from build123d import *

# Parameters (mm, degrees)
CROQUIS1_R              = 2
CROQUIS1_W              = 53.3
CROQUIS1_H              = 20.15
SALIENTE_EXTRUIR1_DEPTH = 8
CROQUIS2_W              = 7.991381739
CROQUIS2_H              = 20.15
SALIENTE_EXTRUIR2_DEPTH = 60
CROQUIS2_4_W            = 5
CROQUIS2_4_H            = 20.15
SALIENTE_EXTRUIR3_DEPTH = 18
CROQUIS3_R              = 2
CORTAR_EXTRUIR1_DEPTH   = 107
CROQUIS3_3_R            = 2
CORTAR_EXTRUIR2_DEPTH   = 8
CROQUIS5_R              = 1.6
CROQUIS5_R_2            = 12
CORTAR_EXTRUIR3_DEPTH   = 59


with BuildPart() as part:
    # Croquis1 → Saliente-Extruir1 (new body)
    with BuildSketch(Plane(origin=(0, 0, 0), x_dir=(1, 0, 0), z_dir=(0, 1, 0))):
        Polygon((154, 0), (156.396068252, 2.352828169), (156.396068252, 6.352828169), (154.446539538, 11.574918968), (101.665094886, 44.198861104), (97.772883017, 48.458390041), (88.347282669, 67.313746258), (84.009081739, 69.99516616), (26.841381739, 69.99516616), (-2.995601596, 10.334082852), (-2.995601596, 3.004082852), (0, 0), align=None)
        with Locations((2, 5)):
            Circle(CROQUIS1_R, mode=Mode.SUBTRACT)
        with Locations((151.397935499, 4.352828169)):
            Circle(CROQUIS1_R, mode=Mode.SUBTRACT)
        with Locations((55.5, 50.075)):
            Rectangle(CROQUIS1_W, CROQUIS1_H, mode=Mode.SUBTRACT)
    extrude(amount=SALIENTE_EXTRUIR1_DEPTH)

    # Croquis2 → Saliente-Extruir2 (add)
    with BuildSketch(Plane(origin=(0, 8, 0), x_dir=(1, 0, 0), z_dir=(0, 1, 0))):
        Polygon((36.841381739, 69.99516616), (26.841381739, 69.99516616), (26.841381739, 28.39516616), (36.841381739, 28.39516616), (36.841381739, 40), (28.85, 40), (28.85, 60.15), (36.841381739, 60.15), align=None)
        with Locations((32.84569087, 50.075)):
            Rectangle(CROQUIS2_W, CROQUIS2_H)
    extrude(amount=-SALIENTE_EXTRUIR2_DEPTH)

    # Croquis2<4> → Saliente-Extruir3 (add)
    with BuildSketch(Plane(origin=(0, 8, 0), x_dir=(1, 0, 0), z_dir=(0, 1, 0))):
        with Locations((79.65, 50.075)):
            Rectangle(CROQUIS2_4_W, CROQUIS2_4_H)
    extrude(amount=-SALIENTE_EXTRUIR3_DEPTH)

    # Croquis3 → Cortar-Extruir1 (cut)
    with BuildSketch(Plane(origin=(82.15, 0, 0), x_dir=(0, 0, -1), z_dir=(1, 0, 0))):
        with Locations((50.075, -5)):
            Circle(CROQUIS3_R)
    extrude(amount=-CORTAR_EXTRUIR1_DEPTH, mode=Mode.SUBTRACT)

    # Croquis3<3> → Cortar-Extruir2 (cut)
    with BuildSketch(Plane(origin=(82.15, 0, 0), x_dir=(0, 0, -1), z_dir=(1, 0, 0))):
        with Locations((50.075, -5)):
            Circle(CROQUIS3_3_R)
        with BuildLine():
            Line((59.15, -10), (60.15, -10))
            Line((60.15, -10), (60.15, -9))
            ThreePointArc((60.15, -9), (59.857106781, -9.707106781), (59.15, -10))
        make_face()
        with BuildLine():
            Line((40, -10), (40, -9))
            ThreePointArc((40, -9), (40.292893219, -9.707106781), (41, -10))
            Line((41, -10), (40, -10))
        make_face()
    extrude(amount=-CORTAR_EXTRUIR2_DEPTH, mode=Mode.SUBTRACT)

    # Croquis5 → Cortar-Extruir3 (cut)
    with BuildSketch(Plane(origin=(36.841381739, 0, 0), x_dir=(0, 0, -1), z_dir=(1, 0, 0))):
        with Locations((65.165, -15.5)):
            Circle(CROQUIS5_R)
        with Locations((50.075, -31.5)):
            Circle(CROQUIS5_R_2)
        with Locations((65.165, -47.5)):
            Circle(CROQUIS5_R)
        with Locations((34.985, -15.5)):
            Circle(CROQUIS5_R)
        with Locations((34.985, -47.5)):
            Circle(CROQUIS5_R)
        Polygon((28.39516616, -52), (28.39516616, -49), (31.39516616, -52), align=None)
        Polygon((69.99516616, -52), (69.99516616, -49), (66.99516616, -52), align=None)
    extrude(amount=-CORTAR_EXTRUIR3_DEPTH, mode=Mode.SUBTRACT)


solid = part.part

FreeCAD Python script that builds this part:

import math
import FreeCAD as App
import Part
import Sketcher
Q = App.Units.Quantity

doc = App.newDocument("Part")
body = doc.addObject("PartDesign::Body", "Body")

# Sketch on XZ plane
sketch1 = body.newObject("Sketcher::SketchObject", "Sketch")
sketch1.AttachmentSupport = (doc.getObject("XZ_Plane"), [""])
sketch1.MapMode = "FlatFace"
sketch1.addGeometry(Part.LineSegment(App.Vector(154, 0, 0), App.Vector(156.4, -2.4, 0)), False)
sketch1.addGeometry(Part.LineSegment(App.Vector(156.4, -2.4, 0), App.Vector(156.4, -6.4, 0)), False)
sketch1.addGeometry(Part.LineSegment(App.Vector(156.4, -6.4, 0), App.Vector(154.4, -11.6, 0)), False)
sketch1.addGeometry(Part.LineSegment(App.Vector(154.4, -11.6, 0), App.Vector(101.7, -44.2, 0)), False)
sketch1.addGeometry(Part.LineSegment(App.Vector(101.7, -44.2, 0), App.Vector(97.8, -48.5, 0)), False)
sketch1.addGeometry(Part.LineSegment(App.Vector(97.8, -48.5, 0), App.Vector(88.3, -67.3, 0)), False)
sketch1.addGeometry(Part.LineSegment(App.Vector(88.3, -67.3, 0), App.Vector(84, -70, 0)), False)
sketch1.addGeometry(Part.LineSegment(App.Vector(84, -70, 0), App.Vector(26.8, -70, 0)), False)
sketch1.addGeometry(Part.LineSegment(App.Vector(26.8, -70, 0), App.Vector(-3, -10.3, 0)), False)
sketch1.addGeometry(Part.LineSegment(App.Vector(-3, -10.3, 0), App.Vector(-3, -3, 0)), False)
sketch1.addGeometry(Part.LineSegment(App.Vector(-3, -3, 0), App.Vector(0, 0, 0)), False)
sketch1.addGeometry(Part.LineSegment(App.Vector(0, 0, 0), App.Vector(154, 0, 0)), False)
sketch1.addGeometry(Part.Circle(App.Vector(2, -5, 0), App.Vector(0, 0, 1), 2), False)
sketch1.addGeometry(Part.Circle(App.Vector(151.4, -4.4, 0), App.Vector(0, 0, 1), 2), False)
sketch1.addGeometry(Part.LineSegment(App.Vector(82.2, -40, 0), App.Vector(28.9, -40, 0)), False)
sketch1.addGeometry(Part.LineSegment(App.Vector(28.9, -40, 0), App.Vector(28.9, -60.1, 0)), False)
sketch1.addGeometry(Part.LineSegment(App.Vector(28.9, -60.1, 0), App.Vector(82.2, -60.1, 0)), False)
sketch1.addGeometry(Part.LineSegment(App.Vector(82.2, -60.1, 0), App.Vector(82.2, -40, 0)), False)
sketch1.addConstraint(Sketcher.Constraint("Coincident", 0, 2, 1, 1))
sketch1.addConstraint(Sketcher.Constraint("Coincident", 1, 2, 2, 1))
sketch1.addConstraint(Sketcher.Constraint("Coincident", 2, 2, 3, 1))
sketch1.addConstraint(Sketcher.Constraint("Coincident", 3, 2, 4, 1))
sketch1.addConstraint(Sketcher.Constraint("Coincident", 4, 2, 5, 1))
sketch1.addConstraint(Sketcher.Constraint("Coincident", 5, 2, 6, 1))
sketch1.addConstraint(Sketcher.Constraint("Coincident", 6, 2, 7, 1))
sketch1.addConstraint(Sketcher.Constraint("Coincident", 7, 2, 8, 1))
sketch1.addConstraint(Sketcher.Constraint("Coincident", 8, 2, 9, 1))
sketch1.addConstraint(Sketcher.Constraint("Coincident", 9, 2, 10, 1))
sketch1.addConstraint(Sketcher.Constraint("Coincident", 10, 2, 11, 1))
sketch1.addConstraint(Sketcher.Constraint("Coincident", 11, 2, 0, 1))
sketch1.addConstraint(Sketcher.Constraint("Coincident", 14, 2, 15, 1))
sketch1.addConstraint(Sketcher.Constraint("Coincident", 15, 2, 16, 1))
sketch1.addConstraint(Sketcher.Constraint("Coincident", 16, 2, 17, 1))
sketch1.addConstraint(Sketcher.Constraint("Coincident", 17, 2, 14, 1))
sketch1.addConstraint(Sketcher.Constraint("Vertical", 1))
sketch1.addConstraint(Sketcher.Constraint("Horizontal", 7))
sketch1.addConstraint(Sketcher.Constraint("Vertical", 9))
sketch1.addConstraint(Sketcher.Constraint("Horizontal", 11))
sketch1.addConstraint(Sketcher.Constraint("Horizontal", 14))
sketch1.addConstraint(Sketcher.Constraint("Vertical", 15))
sketch1.addConstraint(Sketcher.Constraint("Horizontal", 16))
sketch1.addConstraint(Sketcher.Constraint("Vertical", 17))
sketch1.addConstraint(Sketcher.Constraint("Coincident", 10, 2, -1, 1))
sketch1.addConstraint(Sketcher.Constraint("Equal", 12, 13))
sketch1.addConstraint(Sketcher.Constraint("Parallel", 3, 6))
sketch1.addConstraint(Sketcher.Constraint("Diameter", 12, 4.0))
sketch1.addConstraint(Sketcher.Constraint("DistanceX", 11, 1, 11, 2, 154.0))
sketch1.addConstraint(Sketcher.Constraint("DistanceY", 1, 2, 1, 1, 4.0))
sketch1.addConstraint(Sketcher.Constraint("DistanceX", 14, 2, 14, 1, 53.3))
sketch1.addConstraint(Sketcher.Constraint("DistanceX", -1, 1, 12, 3, 2.0))
sketch1.addConstraint(Sketcher.Constraint("DistanceY", 12, 3, -1, 1, 5.0))
sketch1.addConstraint(Sketcher.Constraint("DistanceY", 14, 2, -1, 1, 40.0))
sketch1.addConstraint(Sketcher.Constraint("DistanceY", 13, 3, 0, 2, 2.0))
sketch1.addConstraint(Sketcher.Constraint("Distance", 6, 5.1))
sketch1.addConstraint(Sketcher.Constraint("DistanceY", 9, 1, 9, 2, 7.33))
sketch1.addConstraint(Sketcher.Constraint("DistanceY", 15, 2, 15, 1, 20.15))
sketch1.addConstraint(Sketcher.Constraint("Angle", 3, Q("-148.28 deg")))
sketch1.addConstraint(Sketcher.Constraint("Angle", 4, Q("-132.42 deg")))
sketch1.addConstraint(Sketcher.Constraint("Angle", 5, Q("-116.56 deg")))
sketch1.addConstraint(Sketcher.Constraint("Angle", 8, Q("116.57 deg")))
sketch1.addConstraint(Sketcher.Constraint("Distance", 3, 62.05))
sketch1.addConstraint(Sketcher.Constraint("Distance", 4, 5.77))
sketch1.addConstraint(Sketcher.Constraint("Distance", 5, 21.08))
sketch1.addConstraint(Sketcher.Constraint("DistanceX", -1, 1, 14, 2, 28.85))
sketch1.addConstraint(Sketcher.Constraint("Distance", 8, 66.706))
sketch1.addConstraint(Sketcher.Constraint("DistanceX", 7, 2, 7, 1, 57.1677))
sketch1.addConstraint(Sketcher.Constraint("DistanceX", 8, 2, -1, 1, 2.995602))
sketch1.addConstraint(Sketcher.Constraint("Distance", 10, 4.242422))
sketch1.addConstraint(Sketcher.Constraint("DistanceY", 13, 3, -1, 1, 4.352828))
sketch1.addConstraint(Sketcher.Constraint("DistanceX", -1, 1, 0, 2, 156.396068))
sketch1.addConstraint(Sketcher.Constraint("DistanceX", 3, 2, 13, 3, 49.732841))
pad1 = body.newObject("PartDesign::Pad", "Pad")
pad1.Profile = sketch1
pad1.Length = 8
pad1.Reversed = True

# Sketch on XZ plane
sketch2 = body.newObject("Sketcher::SketchObject", "Sketch001")
sketch2.AttachmentSupport = (doc.getObject("XZ_Plane"), [""])
sketch2.MapMode = "FlatFace"
sketch2.AttachmentOffset = App.Placement(App.Vector(0, 0, -8), App.Rotation())
sketch2.addGeometry(Part.LineSegment(App.Vector(37, -70, 0), App.Vector(27, -70, 0)), False)
sketch2.addGeometry(Part.LineSegment(App.Vector(27, -70, 0), App.Vector(27, -28, 0)), False)
sketch2.addGeometry(Part.LineSegment(App.Vector(27, -28, 0), App.Vector(37, -28, 0)), False)
sketch2.addGeometry(Part.LineSegment(App.Vector(37, -28, 0), App.Vector(37, -40, 0)), False)
sketch2.addGeometry(Part.LineSegment(App.Vector(37, -40, 0), App.Vector(37, -60, 0)), False)
sketch2.addGeometry(Part.LineSegment(App.Vector(37, -60, 0), App.Vector(37, -70, 0)), False)
sketch2.addConstraint(Sketcher.Constraint("Coincident", 0, 2, 1, 1))
sketch2.addConstraint(Sketcher.Constraint("Coincident", 1, 2, 2, 1))
sketch2.addConstraint(Sketcher.Constraint("Coincident", 2, 2, 3, 1))
sketch2.addConstraint(Sketcher.Constraint("Coincident", 3, 2, 4, 1))
sketch2.addConstraint(Sketcher.Constraint("Coincident", 4, 2, 5, 1))
sketch2.addConstraint(Sketcher.Constraint("Coincident", 5, 2, 0, 1))
sketch2.addConstraint(Sketcher.Constraint("Horizontal", 0))
sketch2.addConstraint(Sketcher.Constraint("Vertical", 1))
sketch2.addConstraint(Sketcher.Constraint("Horizontal", 2))
sketch2.addConstraint(Sketcher.Constraint("Vertical", 3))
sketch2.addConstraint(Sketcher.Constraint("Vertical", 4))
sketch2.addConstraint(Sketcher.Constraint("Vertical", 5))
sketch2.addConstraint(Sketcher.Constraint("DistanceX", 0, 2, 0, 1, 10.0))
sketch2.addConstraint(Sketcher.Constraint("DistanceY", 1, 1, 1, 2, 41.6))
sketch2.addConstraint(Sketcher.Constraint("DistanceY", 3, 2, -1, 1, 40.0))
sketch2.addConstraint(Sketcher.Constraint("DistanceY", 4, 2, 4, 1, 20.15))
sketch2.addConstraint(Sketcher.Constraint("DistanceY", 3, 2, 3, 1, 11.604834))
sketch2.addConstraint(Sketcher.Constraint("DistanceX", -1, 1, 0, 2, 26.841382))
pad2 = body.newObject("PartDesign::Pad", "Pad001")
pad2.Profile = sketch2
pad2.Length = 60

# Sketch on XZ plane
sketch3 = body.newObject("Sketcher::SketchObject", "Sketch002")
sketch3.AttachmentSupport = (doc.getObject("XZ_Plane"), [""])
sketch3.MapMode = "FlatFace"
sketch3.AttachmentOffset = App.Placement(App.Vector(0, 0, -8), App.Rotation())
sketch3.addGeometry(Part.LineSegment(App.Vector(77, -60, 0), App.Vector(77, -40, 0)), False)
sketch3.addGeometry(Part.LineSegment(App.Vector(77, -40, 0), App.Vector(82, -40, 0)), False)
sketch3.addGeometry(Part.LineSegment(App.Vector(82, -40, 0), App.Vector(82, -60, 0)), False)
sketch3.addGeometry(Part.LineSegment(App.Vector(82, -60, 0), App.Vector(77, -60, 0)), False)
sketch3.addConstraint(Sketcher.Constraint("Coincident", 0, 2, 1, 1))
sketch3.addConstraint(Sketcher.Constraint("Coincident", 1, 2, 2, 1))
sketch3.addConstraint(Sketcher.Constraint("Coincident", 2, 2, 3, 1))
sketch3.addConstraint(Sketcher.Constraint("Coincident", 3, 2, 0, 1))
sketch3.addConstraint(Sketcher.Constraint("Vertical", 0))
sketch3.addConstraint(Sketcher.Constraint("Horizontal", 1))
sketch3.addConstraint(Sketcher.Constraint("Vertical", 2))
sketch3.addConstraint(Sketcher.Constraint("Horizontal", 3))
sketch3.addConstraint(Sketcher.Constraint("DistanceX", 1, 1, 1, 2, 5.0))
sketch3.addConstraint(Sketcher.Constraint("DistanceY", 0, 2, -1, 1, 40.0))
sketch3.addConstraint(Sketcher.Constraint("DistanceY", 0, 1, 0, 2, 20.15))
sketch3.addConstraint(Sketcher.Constraint("DistanceX", -1, 1, 0, 2, 77.15))
pad3 = body.newObject("PartDesign::Pad", "Pad002")
pad3.Profile = sketch3
pad3.Length = 18

# Sketch on YZ plane
sketch4 = body.newObject("Sketcher::SketchObject", "Sketch003")
sketch4.AttachmentSupport = (doc.getObject("YZ_Plane"), [""])
sketch4.MapMode = "FlatFace"
sketch4.AttachmentOffset = App.Placement(App.Vector(0, 0, 82.15), App.Rotation())
sketch4.addGeometry(Part.Circle(App.Vector(-5, -50.1, 0), App.Vector(0, 0, 1), 2), False)
sketch4.addConstraint(Sketcher.Constraint("Diameter", 0, 4.0))
sketch4.addConstraint(Sketcher.Constraint("DistanceX", 0, 3, -1, 1, 5.0))
sketch4.addConstraint(Sketcher.Constraint("DistanceY", 0, 3, -1, 1, 50.075))
pocket1 = body.newObject("PartDesign::Pocket", "Pocket")
pocket1.Profile = sketch4
pocket1.Length = 107

# Sketch on YZ plane
sketch5 = body.newObject("Sketcher::SketchObject", "Sketch004")
sketch5.AttachmentSupport = (doc.getObject("YZ_Plane"), [""])
sketch5.MapMode = "FlatFace"
sketch5.AttachmentOffset = App.Placement(App.Vector(0, 0, 82.15), App.Rotation())
sketch5.addGeometry(Part.Circle(App.Vector(-5, -50.1, 0), App.Vector(0, 0, 1), 2), False)
sketch5.addGeometry(Part.LineSegment(App.Vector(-10, -59.1, 0), App.Vector(-10, -60.1, 0)), False)
sketch5.addGeometry(Part.LineSegment(App.Vector(-10, -60.1, 0), App.Vector(-9, -60.1, 0)), False)
sketch5.addGeometry(Part.ArcOfCircle(Part.Circle(App.Vector(-9, -59.1, 0), App.Vector(0, 0, 1), 1), math.radians(-180), math.radians(-90)), False)
sketch5.addGeometry(Part.LineSegment(App.Vector(-9, -40, 0), App.Vector(-10, -40, 0)), False)
sketch5.addGeometry(Part.LineSegment(App.Vector(-10, -40, 0), App.Vector(-10, -41, 0)), False)
sketch5.addGeometry(Part.ArcOfCircle(Part.Circle(App.Vector(-9, -41, 0), App.Vector(0, 0, 1), 1), math.radians(90), math.radians(180)), False)
sketch5.addConstraint(Sketcher.Constraint("Coincident", 1, 2, 2, 1))
sketch5.addConstraint(Sketcher.Constraint("Tangent", 2, 2, 3, 2))
sketch5.addConstraint(Sketcher.Constraint("Tangent", 3, 1, 1, 1))
sketch5.addConstraint(Sketcher.Constraint("Coincident", 4, 2, 5, 1))
sketch5.addConstraint(Sketcher.Constraint("Tangent", 5, 2, 6, 2))
sketch5.addConstraint(Sketcher.Constraint("Tangent", 6, 1, 4, 1))
sketch5.addConstraint(Sketcher.Constraint("Vertical", 1))
sketch5.addConstraint(Sketcher.Constraint("Horizontal", 2))
sketch5.addConstraint(Sketcher.Constraint("Horizontal", 4))
sketch5.addConstraint(Sketcher.Constraint("Vertical", 5))
sketch5.addConstraint(Sketcher.Constraint("Equal", 3, 6))
sketch5.addConstraint(Sketcher.Constraint("Vertical", 3, 3, 6, 3))
sketch5.addConstraint(Sketcher.Constraint("Diameter", 0, 4.0))
sketch5.addConstraint(Sketcher.Constraint("Radius", 3, 1.0))
sketch5.addConstraint(Sketcher.Constraint("DistanceX", 0, 3, -1, 1, 5.0))
sketch5.addConstraint(Sketcher.Constraint("DistanceX", 3, 3, -1, 1, 9.0))
sketch5.addConstraint(Sketcher.Constraint("DistanceY", 6, 3, -1, 1, 41.0))
sketch5.addConstraint(Sketcher.Constraint("DistanceY", 3, 3, -1, 1, 59.15))
sketch5.addConstraint(Sketcher.Constraint("DistanceY", 0, 3, -1, 1, 50.075))
pocket2 = body.newObject("PartDesign::Pocket", "Pocket001")
pocket2.Profile = sketch5
pocket2.Length = 8

# Sketch on YZ plane
sketch6 = body.newObject("Sketcher::SketchObject", "Sketch005")
sketch6.AttachmentSupport = (doc.getObject("YZ_Plane"), [""])
sketch6.MapMode = "FlatFace"
sketch6.AttachmentOffset = App.Placement(App.Vector(0, 0, 36.841382), App.Rotation())
sketch6.addGeometry(Part.Circle(App.Vector(-15.5, -65.2, 0), App.Vector(0, 0, 1), 1.6), False)
sketch6.addGeometry(Part.Circle(App.Vector(-31.5, -50.1, 0), App.Vector(0, 0, 1), 12), False)
sketch6.addGeometry(Part.Circle(App.Vector(-47.5, -65.2, 0), App.Vector(0, 0, 1), 1.6), False)
sketch6.addGeometry(Part.Circle(App.Vector(-15.5, -35, 0), App.Vector(0, 0, 1), 1.6), False)
sketch6.addGeometry(Part.Circle(App.Vector(-47.5, -35, 0), App.Vector(0, 0, 1), 1.6), False)
sketch6.addGeometry(Part.LineSegment(App.Vector(-49, -28.4, 0), App.Vector(-52, -28.4, 0)), False)
sketch6.addGeometry(Part.LineSegment(App.Vector(-52, -28.4, 0), App.Vector(-52, -31.4, 0)), False)
sketch6.addGeometry(Part.LineSegment(App.Vector(-52, -31.4, 0), App.Vector(-49, -28.4, 0)), False)
sketch6.addGeometry(Part.LineSegment(App.Vector(-52, -70, 0), App.Vector(-49, -70, 0)), False)
sketch6.addGeometry(Part.LineSegment(App.Vector(-49, -70, 0), App.Vector(-52, -67, 0)), False)
sketch6.addGeometry(Part.LineSegment(App.Vector(-52, -67, 0), App.Vector(-52, -70, 0)), False)
sketch6.addConstraint(Sketcher.Constraint("Coincident", 5, 2, 6, 1))
sketch6.addConstraint(Sketcher.Constraint("Coincident", 6, 2, 7, 1))
sketch6.addConstraint(Sketcher.Constraint("Coincident", 7, 2, 5, 1))
sketch6.addConstraint(Sketcher.Constraint("Coincident", 8, 2, 9, 1))
sketch6.addConstraint(Sketcher.Constraint("Coincident", 9, 2, 10, 1))
sketch6.addConstraint(Sketcher.Constraint("Coincident", 10, 2, 8, 1))
sketch6.addConstraint(Sketcher.Constraint("Horizontal", 5))
sketch6.addConstraint(Sketcher.Constraint("Vertical", 6))
sketch6.addConstraint(Sketcher.Constraint("Horizontal", 8))
sketch6.addConstraint(Sketcher.Constraint("Vertical", 10))
sketch6.addConstraint(Sketcher.Constraint("Equal", 0, 2))
sketch6.addConstraint(Sketcher.Constraint("Equal", 2, 3))
sketch6.addConstraint(Sketcher.Constraint("Equal", 3, 4))
sketch6.addConstraint(Sketcher.Constraint("Perpendicular", 7, 9))
sketch6.addConstraint(Sketcher.Constraint("Horizontal", 0, 3, 2, 3))
sketch6.addConstraint(Sketcher.Constraint("Horizontal", 3, 3, 4, 3))
sketch6.addConstraint(Sketcher.Constraint("Vertical", 0, 3, 3, 3))
sketch6.addConstraint(Sketcher.Constraint("Vertical", 2, 3, 4, 3))
sketch6.addConstraint(Sketcher.Constraint("Vertical", 7, 2, 8, 2))
sketch6.addConstraint(Sketcher.Constraint("Vertical", 6, 2, 9, 2))
sketch6.addConstraint(Sketcher.Constraint("Equal", 8, 6))
sketch6.addConstraint(Sketcher.Constraint("Diameter", 1, 24.0))
sketch6.addConstraint(Sketcher.Constraint("Diameter", 0, 3.2))
sketch6.addConstraint(Sketcher.Constraint("DistanceX", 5, 2, 5, 1, 3.0))
sketch6.addConstraint(Sketcher.Constraint("DistanceX", 5, 2, -1, 1, 52.0))
sketch6.addConstraint(Sketcher.Constraint("DistanceX", 1, 3, 0, 3, 16.0))
sketch6.addConstraint(Sketcher.Constraint("DistanceX", 2, 3, 1, 3, 16.0))
sketch6.addConstraint(Sketcher.Constraint("DistanceX", 0, 3, -1, 1, 15.5))
sketch6.addConstraint(Sketcher.Constraint("DistanceY", 8, 2, 6, 2, 38.6))
sketch6.addConstraint(Sketcher.Constraint("DistanceY", 0, 3, 1, 3, 15.09))
sketch6.addConstraint(Sketcher.Constraint("DistanceY", 1, 3, 3, 3, 15.09))
sketch6.addConstraint(Sketcher.Constraint("DistanceY", 0, 3, -1, 1, 65.165))
sketch6.addConstraint(Sketcher.Constraint("DistanceY", 5, 2, -1, 1, 28.395166))
pocket3 = body.newObject("PartDesign::Pocket", "Pocket002")
pocket3.Profile = sketch6
pocket3.Length = 59

doc.recompute()
